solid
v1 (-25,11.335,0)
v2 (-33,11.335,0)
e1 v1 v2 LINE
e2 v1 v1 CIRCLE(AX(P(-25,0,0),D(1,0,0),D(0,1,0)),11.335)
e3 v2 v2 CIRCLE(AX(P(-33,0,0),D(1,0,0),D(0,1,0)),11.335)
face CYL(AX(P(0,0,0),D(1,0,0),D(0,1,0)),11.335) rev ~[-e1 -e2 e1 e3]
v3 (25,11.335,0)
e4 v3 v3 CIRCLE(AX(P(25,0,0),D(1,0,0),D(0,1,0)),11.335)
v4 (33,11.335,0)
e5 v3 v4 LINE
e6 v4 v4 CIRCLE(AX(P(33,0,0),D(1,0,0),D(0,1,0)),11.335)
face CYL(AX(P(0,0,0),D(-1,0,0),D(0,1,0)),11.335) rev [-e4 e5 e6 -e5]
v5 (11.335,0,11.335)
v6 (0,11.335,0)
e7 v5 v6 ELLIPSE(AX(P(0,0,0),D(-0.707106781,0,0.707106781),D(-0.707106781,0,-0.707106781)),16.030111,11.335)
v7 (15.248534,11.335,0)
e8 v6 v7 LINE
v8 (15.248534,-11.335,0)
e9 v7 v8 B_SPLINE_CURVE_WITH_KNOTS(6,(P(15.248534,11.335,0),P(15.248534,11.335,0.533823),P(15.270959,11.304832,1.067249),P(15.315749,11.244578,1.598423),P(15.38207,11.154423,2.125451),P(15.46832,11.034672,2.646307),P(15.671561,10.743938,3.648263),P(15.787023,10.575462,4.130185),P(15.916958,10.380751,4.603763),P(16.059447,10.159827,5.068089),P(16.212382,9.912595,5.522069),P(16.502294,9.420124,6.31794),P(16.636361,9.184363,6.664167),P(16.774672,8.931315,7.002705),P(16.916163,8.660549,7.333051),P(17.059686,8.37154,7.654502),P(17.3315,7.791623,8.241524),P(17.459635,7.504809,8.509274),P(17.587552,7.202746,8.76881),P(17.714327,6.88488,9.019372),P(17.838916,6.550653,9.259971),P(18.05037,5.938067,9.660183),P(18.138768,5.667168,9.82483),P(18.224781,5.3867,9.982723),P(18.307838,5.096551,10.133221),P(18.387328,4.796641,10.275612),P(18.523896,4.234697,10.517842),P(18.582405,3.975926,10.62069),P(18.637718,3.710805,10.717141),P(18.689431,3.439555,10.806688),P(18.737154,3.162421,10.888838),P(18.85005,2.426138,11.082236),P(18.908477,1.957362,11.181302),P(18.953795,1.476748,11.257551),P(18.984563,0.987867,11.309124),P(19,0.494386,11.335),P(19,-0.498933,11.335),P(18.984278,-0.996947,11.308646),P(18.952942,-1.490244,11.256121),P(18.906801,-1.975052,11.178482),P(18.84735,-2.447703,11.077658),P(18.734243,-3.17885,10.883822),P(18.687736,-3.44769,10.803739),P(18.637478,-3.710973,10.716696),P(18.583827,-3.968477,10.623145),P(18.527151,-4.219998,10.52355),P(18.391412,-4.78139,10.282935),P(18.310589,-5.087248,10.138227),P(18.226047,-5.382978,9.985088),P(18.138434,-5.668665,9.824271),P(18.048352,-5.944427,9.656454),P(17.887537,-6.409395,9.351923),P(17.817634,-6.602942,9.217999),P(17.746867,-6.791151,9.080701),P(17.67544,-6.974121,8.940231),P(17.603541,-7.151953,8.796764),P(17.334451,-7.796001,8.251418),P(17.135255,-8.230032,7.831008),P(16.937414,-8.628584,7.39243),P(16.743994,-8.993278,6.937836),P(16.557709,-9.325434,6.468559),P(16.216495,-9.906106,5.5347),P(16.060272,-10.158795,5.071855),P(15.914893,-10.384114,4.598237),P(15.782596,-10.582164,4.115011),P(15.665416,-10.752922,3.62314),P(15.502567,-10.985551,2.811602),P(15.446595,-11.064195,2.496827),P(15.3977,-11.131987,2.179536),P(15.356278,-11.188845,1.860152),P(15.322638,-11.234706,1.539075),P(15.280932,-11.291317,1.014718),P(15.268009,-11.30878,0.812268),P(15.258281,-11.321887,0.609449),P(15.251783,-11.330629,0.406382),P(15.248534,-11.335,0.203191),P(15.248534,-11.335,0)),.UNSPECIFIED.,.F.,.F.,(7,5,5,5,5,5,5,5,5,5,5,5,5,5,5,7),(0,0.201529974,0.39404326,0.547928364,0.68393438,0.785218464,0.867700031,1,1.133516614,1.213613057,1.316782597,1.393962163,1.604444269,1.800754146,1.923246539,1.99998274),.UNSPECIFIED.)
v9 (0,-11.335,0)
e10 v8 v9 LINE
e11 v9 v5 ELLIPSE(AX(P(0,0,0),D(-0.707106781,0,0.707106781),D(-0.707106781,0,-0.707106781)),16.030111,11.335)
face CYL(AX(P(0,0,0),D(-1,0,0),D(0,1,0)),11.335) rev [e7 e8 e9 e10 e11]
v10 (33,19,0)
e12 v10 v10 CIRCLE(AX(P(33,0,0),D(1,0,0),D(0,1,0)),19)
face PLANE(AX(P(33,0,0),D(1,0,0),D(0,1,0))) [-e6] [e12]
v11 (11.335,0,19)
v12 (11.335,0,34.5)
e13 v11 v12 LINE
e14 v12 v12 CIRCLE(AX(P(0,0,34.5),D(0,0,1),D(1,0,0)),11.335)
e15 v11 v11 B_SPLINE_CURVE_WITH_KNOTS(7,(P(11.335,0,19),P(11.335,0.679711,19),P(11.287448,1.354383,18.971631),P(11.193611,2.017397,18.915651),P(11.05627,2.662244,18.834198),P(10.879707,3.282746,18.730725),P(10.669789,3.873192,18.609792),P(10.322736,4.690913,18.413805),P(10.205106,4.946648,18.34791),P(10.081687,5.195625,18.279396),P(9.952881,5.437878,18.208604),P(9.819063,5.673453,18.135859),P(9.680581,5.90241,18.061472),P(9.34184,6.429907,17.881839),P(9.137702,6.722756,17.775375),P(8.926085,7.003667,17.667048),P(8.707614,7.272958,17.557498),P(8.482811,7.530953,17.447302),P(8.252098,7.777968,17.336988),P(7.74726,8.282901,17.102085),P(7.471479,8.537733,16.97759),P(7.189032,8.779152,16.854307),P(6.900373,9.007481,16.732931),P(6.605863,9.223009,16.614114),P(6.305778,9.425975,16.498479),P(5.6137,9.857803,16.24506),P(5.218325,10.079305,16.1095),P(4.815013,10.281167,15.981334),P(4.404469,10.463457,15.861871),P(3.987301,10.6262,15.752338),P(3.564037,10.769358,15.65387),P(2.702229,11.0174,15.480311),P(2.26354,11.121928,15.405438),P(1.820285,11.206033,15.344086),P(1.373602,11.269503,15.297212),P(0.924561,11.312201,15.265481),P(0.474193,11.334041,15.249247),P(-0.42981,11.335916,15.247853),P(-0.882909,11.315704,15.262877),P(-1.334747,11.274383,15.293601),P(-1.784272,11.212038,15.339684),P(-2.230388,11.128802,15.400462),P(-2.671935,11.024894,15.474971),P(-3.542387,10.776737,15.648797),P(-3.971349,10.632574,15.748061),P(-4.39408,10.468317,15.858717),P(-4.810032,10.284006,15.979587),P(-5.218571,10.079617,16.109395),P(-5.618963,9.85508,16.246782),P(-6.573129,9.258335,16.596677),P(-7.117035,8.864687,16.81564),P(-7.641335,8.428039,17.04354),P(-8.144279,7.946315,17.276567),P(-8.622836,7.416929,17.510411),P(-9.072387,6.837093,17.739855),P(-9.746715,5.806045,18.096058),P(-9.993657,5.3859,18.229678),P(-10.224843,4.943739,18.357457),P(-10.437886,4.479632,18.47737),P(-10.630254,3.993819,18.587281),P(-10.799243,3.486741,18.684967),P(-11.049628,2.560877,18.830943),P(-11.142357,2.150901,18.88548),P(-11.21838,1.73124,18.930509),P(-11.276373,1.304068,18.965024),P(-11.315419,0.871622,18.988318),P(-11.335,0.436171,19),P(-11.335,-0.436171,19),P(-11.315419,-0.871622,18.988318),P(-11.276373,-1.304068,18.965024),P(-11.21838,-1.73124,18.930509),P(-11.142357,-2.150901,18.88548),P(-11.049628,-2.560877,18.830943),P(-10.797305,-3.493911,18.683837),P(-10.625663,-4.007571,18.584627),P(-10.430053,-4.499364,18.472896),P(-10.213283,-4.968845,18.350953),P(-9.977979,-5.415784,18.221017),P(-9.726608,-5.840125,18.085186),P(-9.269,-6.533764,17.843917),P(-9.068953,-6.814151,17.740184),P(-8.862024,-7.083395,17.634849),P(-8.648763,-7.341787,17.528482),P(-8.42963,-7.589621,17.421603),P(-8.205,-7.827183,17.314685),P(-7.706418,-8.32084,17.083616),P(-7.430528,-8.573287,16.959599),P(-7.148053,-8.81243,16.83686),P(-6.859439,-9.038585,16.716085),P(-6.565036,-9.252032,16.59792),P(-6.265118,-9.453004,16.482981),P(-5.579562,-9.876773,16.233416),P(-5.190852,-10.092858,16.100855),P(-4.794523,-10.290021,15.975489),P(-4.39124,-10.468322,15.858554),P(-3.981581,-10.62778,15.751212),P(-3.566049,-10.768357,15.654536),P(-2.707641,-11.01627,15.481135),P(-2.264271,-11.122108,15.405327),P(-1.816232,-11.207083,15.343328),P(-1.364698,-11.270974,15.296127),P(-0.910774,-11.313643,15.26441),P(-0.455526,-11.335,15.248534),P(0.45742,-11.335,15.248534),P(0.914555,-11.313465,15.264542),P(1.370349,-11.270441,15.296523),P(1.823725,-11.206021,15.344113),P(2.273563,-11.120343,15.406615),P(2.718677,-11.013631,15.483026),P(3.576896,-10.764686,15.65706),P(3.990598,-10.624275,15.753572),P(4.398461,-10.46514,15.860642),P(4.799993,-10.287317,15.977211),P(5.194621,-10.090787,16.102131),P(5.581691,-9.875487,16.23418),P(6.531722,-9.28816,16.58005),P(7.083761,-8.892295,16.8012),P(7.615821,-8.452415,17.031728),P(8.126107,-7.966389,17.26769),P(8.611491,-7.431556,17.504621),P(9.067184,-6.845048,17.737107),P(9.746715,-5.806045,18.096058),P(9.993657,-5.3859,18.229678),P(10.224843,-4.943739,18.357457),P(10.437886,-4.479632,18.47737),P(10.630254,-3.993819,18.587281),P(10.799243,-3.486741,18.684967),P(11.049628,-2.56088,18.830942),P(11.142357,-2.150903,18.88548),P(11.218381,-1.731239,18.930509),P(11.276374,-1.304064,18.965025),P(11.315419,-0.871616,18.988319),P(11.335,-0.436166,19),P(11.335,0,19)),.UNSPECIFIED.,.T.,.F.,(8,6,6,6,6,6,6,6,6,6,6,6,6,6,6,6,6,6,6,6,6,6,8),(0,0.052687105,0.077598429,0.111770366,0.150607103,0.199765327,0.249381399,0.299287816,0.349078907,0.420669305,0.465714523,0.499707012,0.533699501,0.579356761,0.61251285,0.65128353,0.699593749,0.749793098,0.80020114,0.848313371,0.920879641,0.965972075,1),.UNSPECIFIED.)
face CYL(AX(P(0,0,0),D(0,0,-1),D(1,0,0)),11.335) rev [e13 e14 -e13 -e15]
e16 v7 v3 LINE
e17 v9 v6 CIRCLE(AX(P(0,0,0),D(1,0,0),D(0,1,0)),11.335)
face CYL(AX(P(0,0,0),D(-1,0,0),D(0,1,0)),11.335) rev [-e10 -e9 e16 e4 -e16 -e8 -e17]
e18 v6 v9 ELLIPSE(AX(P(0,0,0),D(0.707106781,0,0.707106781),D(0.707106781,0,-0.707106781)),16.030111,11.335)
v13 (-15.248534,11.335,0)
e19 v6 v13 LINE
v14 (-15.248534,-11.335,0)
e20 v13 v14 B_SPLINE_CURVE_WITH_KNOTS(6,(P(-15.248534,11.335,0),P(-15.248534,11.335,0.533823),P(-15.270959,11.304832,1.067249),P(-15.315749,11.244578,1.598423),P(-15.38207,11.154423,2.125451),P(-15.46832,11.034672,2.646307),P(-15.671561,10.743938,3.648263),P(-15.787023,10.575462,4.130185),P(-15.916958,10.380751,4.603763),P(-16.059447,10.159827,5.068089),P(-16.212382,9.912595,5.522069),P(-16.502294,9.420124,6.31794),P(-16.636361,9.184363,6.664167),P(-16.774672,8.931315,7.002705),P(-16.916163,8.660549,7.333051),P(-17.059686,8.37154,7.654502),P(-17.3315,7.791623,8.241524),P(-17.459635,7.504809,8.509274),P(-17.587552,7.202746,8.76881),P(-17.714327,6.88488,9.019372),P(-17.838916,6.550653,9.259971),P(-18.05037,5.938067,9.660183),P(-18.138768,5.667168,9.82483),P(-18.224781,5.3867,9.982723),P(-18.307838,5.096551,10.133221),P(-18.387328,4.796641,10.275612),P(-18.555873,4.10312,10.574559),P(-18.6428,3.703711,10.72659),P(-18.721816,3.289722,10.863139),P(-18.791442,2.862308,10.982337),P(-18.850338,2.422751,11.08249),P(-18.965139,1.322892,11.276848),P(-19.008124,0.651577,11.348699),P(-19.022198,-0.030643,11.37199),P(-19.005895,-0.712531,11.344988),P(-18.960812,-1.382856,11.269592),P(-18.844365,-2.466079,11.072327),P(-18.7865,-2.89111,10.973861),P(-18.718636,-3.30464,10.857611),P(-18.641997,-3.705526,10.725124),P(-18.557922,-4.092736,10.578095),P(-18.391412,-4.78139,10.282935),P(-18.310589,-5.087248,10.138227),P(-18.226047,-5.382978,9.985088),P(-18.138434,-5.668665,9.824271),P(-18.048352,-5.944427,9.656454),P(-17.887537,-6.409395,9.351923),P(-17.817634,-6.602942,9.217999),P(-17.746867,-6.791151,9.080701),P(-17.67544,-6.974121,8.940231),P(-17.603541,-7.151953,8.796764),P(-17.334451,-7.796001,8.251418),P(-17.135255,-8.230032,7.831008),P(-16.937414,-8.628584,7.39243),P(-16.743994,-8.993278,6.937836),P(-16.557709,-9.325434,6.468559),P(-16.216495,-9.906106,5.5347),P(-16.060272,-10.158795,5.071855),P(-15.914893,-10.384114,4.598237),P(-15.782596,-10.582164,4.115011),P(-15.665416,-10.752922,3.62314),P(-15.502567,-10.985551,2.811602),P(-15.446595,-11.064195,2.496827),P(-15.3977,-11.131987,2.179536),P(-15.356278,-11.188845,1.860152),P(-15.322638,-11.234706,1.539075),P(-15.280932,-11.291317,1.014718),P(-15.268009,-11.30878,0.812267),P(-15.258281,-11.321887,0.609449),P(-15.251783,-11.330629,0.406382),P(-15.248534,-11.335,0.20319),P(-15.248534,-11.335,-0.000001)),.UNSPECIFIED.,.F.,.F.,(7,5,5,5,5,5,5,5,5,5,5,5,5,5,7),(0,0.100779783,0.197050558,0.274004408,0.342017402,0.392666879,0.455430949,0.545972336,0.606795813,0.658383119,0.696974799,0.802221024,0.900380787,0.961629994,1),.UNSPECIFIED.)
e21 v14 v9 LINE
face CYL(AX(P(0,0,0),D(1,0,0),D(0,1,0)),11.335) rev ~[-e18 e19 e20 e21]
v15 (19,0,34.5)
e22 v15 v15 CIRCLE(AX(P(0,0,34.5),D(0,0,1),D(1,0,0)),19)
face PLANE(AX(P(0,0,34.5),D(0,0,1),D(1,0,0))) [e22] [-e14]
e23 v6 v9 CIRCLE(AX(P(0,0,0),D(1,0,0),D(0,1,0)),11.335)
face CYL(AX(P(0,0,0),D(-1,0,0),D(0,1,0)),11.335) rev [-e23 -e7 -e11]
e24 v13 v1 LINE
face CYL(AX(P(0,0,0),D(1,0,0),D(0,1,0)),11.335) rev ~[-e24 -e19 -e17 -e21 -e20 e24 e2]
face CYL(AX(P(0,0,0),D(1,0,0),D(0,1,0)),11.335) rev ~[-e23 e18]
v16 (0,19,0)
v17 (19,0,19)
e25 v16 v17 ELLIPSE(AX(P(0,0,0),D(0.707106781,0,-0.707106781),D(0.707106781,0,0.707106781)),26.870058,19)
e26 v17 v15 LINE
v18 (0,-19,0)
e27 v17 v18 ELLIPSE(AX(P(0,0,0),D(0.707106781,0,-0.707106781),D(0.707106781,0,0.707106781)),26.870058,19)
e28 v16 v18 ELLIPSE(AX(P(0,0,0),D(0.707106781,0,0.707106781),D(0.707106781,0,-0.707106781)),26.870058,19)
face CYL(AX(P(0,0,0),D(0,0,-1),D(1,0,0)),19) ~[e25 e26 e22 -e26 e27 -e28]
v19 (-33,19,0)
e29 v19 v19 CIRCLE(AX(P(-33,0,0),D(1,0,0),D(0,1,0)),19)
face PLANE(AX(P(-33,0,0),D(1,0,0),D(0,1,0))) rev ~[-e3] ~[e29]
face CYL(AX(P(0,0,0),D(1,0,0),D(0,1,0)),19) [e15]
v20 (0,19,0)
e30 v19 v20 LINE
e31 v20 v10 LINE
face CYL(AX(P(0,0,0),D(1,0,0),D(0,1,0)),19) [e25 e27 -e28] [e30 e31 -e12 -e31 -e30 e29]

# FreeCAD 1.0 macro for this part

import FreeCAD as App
import Part
import Sketcher
from FreeCAD import Vector
Q = App.Units.Quantity

doc = App.newDocument("Part")
body = doc.addObject("PartDesign::Body", "Body")

# Sketch on YZ plane
sketch1 = body.newObject("Sketcher::SketchObject", "Sketch")
sketch1.AttachmentSupport = (doc.getObject("YZ_Plane"), [""])
sketch1.MapMode = "FlatFace"
sketch1.addGeometry([
    Part.Circle(Vector(0, 0, 0), Vector(0, 0, 1), 19),
    Part.Circle(Vector(0, 0, 0), Vector(0, 0, 1), 11),
], False)
sketch1.addConstraint([
    Sketcher.Constraint("Coincident", 0, 3, -1, 1),
    Sketcher.Constraint("Coincident", 1, 3, -1, 1),
    Sketcher.Constraint("Diameter", 0, Q("38 mm")),
    Sketcher.Constraint("Diameter", 1, Q("22.67 mm")),
])
pad1 = body.newObject("PartDesign::Pad", "Pad")
pad1.Profile = sketch1
pad1.Type = "TwoLengths"
pad1.Length = 33
pad1.Length2 = 33

# Sketch on XY plane
sketch2 = body.newObject("Sketcher::SketchObject", "Sketch001")
sketch2.AttachmentSupport = (doc.getObject("XY_Plane"), [""])
sketch2.MapMode = "FlatFace"
sketch2.addGeometry([
    Part.Circle(Vector(0, 0, 0), Vector(0, 0, 1), 19),
    Part.Circle(Vector(0, 0, 0), Vector(0, 0, 1), 11),
], False)
sketch2.addConstraint([
    Sketcher.Constraint("Coincident", 0, 3, -1, 1),
    Sketcher.Constraint("Coincident", 1, 3, -1, 1),
    Sketcher.Constraint("Diameter", 0, Q("38 mm")),
    Sketcher.Constraint("Diameter", 1, Q("22.67 mm")),
])
pad2 = body.newObject("PartDesign::Pad", "Pad001")
pad2.Profile = sketch2
pad2.Length = 34.5

# Sketch on YZ plane
sketch3 = body.newObject("Sketcher::SketchObject", "Sketch002")
sketch3.AttachmentSupport = (doc.getObject("YZ_Plane"), [""])
sketch3.MapMode = "FlatFace"
sketch3.addGeometry(Part.Circle(Vector(0, 0, 0), Vector(0, 0, 1), 11), False)
sketch3.addConstraint([
    Sketcher.Constraint("Coincident", 0, 3, -1, 1),
    Sketcher.Constraint("Diameter", 0, Q("22.67 mm")),
])
pocket1 = body.newObject("PartDesign::Pocket", "Pocket")
pocket1.Profile = sketch3
pocket1.Type = "ThroughAll"
pocket1.Midplane = True

doc.recompute()
